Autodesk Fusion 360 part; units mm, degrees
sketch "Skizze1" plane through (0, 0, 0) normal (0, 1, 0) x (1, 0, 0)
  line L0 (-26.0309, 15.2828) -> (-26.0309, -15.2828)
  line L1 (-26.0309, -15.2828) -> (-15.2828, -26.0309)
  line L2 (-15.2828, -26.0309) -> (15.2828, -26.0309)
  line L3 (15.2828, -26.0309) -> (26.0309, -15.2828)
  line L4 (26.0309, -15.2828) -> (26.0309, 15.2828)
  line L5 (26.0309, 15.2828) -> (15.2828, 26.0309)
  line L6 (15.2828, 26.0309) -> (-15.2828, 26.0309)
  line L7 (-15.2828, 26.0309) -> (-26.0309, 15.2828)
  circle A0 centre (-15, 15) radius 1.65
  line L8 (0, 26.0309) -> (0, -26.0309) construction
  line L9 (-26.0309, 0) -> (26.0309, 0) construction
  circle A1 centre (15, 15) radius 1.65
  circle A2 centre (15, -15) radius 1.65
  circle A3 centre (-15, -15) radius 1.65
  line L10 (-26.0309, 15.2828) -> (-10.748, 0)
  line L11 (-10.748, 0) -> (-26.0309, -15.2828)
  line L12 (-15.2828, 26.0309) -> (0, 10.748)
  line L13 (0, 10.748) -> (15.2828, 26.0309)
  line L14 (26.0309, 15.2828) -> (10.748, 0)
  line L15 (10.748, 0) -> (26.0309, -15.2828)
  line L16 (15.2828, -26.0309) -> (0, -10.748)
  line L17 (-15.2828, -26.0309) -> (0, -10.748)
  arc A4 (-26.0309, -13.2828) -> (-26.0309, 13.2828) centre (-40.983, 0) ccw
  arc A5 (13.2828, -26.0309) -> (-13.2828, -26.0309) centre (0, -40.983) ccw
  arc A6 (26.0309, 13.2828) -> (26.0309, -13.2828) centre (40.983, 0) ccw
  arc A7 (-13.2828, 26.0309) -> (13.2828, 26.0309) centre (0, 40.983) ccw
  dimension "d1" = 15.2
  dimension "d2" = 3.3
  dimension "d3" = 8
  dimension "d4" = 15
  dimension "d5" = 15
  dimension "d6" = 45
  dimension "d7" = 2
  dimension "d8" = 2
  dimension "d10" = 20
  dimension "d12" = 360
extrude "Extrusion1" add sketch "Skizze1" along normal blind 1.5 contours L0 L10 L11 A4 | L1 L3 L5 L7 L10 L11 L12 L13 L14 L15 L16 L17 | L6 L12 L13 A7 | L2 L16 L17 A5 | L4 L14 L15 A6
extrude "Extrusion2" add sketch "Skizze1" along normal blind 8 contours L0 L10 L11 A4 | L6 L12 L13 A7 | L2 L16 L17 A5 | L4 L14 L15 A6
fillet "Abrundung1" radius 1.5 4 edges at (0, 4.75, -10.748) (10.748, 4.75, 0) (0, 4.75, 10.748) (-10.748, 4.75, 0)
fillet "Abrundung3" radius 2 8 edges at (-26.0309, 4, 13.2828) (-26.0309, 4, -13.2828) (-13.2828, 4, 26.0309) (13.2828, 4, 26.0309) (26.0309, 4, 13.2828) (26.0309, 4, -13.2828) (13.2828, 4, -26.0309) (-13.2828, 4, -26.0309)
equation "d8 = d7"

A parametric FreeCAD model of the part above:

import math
import FreeCAD as App
import Part
import Sketcher

V = App.Vector


def edges_at(feature, points):
    """Names of the edges that pass closest to the given points."""
    edges = feature.Shape.Edges
    near = lambda p: min(range(len(edges)), key=lambda i: edges[i].distToShape(Part.Vertex(*p))[0])
    return sorted({f"Edge{near(p) + 1}" for p in points})

doc = App.newDocument("Part")
body = doc.addObject("PartDesign::Body", "Body")

# Sketch on XZ plane
sketch1 = doc.addObject("Sketcher::SketchObject", "Sketch")
body.addObject(sketch1)
sketch1.AttachmentSupport = (doc.XZ_Plane, [""])
sketch1.MapMode = "FlatFace"
sketch1.addGeometry([
    Part.LineSegment(V(-26, 13.3, 0), V(-26, 15.3, 0)),  # 0
    Part.LineSegment(V(-26, 15.3, 0), V(-15.3, 26, 0)),  # 1
    Part.LineSegment(V(-15.3, 26, 0), V(-13.3, 26, 0)),  # 2
    Part.ArcOfCircle(Part.Circle(V(0, 41, 0), V(0, 0, 1), 20), math.radians(-132), math.radians(-48)),  # 3
    Part.LineSegment(V(13.3, 26, 0), V(15.3, 26, 0)),  # 4
    Part.LineSegment(V(15.3, 26, 0), V(26, 15.3, 0)),  # 5
    Part.LineSegment(V(26, 15.3, 0), V(26, 13.3, 0)),  # 6
    Part.ArcOfCircle(Part.Circle(V(41, 0, 0), V(0, 0, 1), 20), math.radians(138), math.radians(222)),  # 7
    Part.LineSegment(V(26, -13.3, 0), V(26, -15.3, 0)),  # 8
    Part.LineSegment(V(26, -15.3, 0), V(15.3, -26, 0)),  # 9
    Part.LineSegment(V(15.3, -26, 0), V(13.3, -26, 0)),  # 10
    Part.ArcOfCircle(Part.Circle(V(0, -41, 0), V(0, 0, 1), 20), math.radians(48), math.radians(132)),  # 11
    Part.LineSegment(V(-13.3, -26, 0), V(-15.3, -26, 0)),  # 12
    Part.LineSegment(V(-15.3, -26, 0), V(-26, -15.3, 0)),  # 13
    Part.LineSegment(V(-26, -15.3, 0), V(-26, -13.3, 0)),  # 14
    Part.ArcOfCircle(Part.Circle(V(-41, 0, 0), V(0, 0, 1), 20), math.radians(-42), math.radians(42)),  # 15
    Part.Circle(V(-15, -15, 0), V(0, 0, 1), 1.6),  # 16
    Part.Circle(V(15, -15, 0), V(0, 0, 1), 1.6),  # 17
    Part.Circle(V(-15, 15, 0), V(0, 0, 1), 1.6),  # 18
    Part.Circle(V(15, 15, 0), V(0, 0, 1), 1.6),  # 19
], False)
sketch1.addConstraint([
    Sketcher.Constraint("Coincident", 0, 2, 1, 1),
    Sketcher.Constraint("Coincident", 1, 2, 2, 1),
    Sketcher.Constraint("Coincident", 2, 2, 3, 1),
    Sketcher.Constraint("Coincident", 3, 2, 4, 1),
    Sketcher.Constraint("Coincident", 4, 2, 5, 1),
    Sketcher.Constraint("Coincident", 5, 2, 6, 1),
    Sketcher.Constraint("Coincident", 6, 2, 7, 1),
    Sketcher.Constraint("Coincident", 7, 2, 8, 1),
    Sketcher.Constraint("Coincident", 8, 2, 9, 1),
    Sketcher.Constraint("Coincident", 9, 2, 10, 1),
    Sketcher.Constraint("Coincident", 10, 2, 11, 1),
    Sketcher.Constraint("Coincident", 11, 2, 12, 1),
    Sketcher.Constraint("Coincident", 12, 2, 13, 1),
    Sketcher.Constraint("Coincident", 13, 2, 14, 1),
    Sketcher.Constraint("Coincident", 14, 2, 15, 1),
    Sketcher.Constraint("Coincident", 15, 2, 0, 1),
    Sketcher.Constraint("Vertical", 0),
    Sketcher.Constraint("Horizontal", 2),
    Sketcher.Constraint("Horizontal", 4),
    Sketcher.Constraint("Vertical", 6),
    Sketcher.Constraint("Vertical", 8),
    Sketcher.Constraint("Horizontal", 10),
    Sketcher.Constraint("Horizontal", 12),
    Sketcher.Constraint("Vertical", 14),
    Sketcher.Constraint("Equal", 3, 7),
    Sketcher.Constraint("Equal", 7, 11),
    Sketcher.Constraint("Equal", 11, 15),
    Sketcher.Constraint("Equal", 16, 17),
    Sketcher.Constraint("Equal", 17, 18),
    Sketcher.Constraint("Equal", 18, 19),
    Sketcher.Constraint("Symmetric", 3, 3, 11, 3, -1, 1),
    Sketcher.Constraint("Symmetric", 7, 3, 15, 3, -1, 1),
    Sketcher.Constraint("Symmetric", 17, 3, 18, 3, -1, 1),
    Sketcher.Constraint("Symmetric", 16, 3, 19, 3, -1, 1),
    Sketcher.Constraint("Symmetric", 0, 2, 8, 2, -1, 1),
    Sketcher.Constraint("Symmetric", 1, 2, 9, 2, -1, 1),
    Sketcher.Constraint("Symmetric", 4, 2, 12, 2, -1, 1),
    Sketcher.Constraint("Symmetric", 5, 2, 13, 2, -1, 1),
    Sketcher.Constraint("Symmetric", 16, 3, 17, 3, -2),
    Sketcher.Constraint("Symmetric", 2, 2, 3, 2, -2),
    Sketcher.Constraint("Symmetric", 0, 2, 5, 2, -2),
    Sketcher.Constraint("PointOnObject", 7, 3, -1),
    Sketcher.Constraint("Perpendicular", 1, 5),
    Sketcher.Constraint("Vertical", 4, 2, 9, 2),
    Sketcher.Constraint("Equal", 12, 0),
    Sketcher.Constraint("Radius", 3, 20.0),
    Sketcher.Constraint("Diameter", 16, 3.3),
    Sketcher.Constraint("DistanceX", 2, 1, 2, 2, 2.0),
    Sketcher.Constraint("DistanceX", 16, 3, -1, 1, 15.0),
    Sketcher.Constraint("DistanceY", 16, 3, -1, 1, 15.0),
    Sketcher.Constraint("Distance", 1, 15.2),
    Sketcher.Constraint("DistanceY", -1, 1, 3, 3, 40.983),
    Sketcher.Constraint("DistanceX", -1, 1, 7, 3, 40.983),
])
pad1 = doc.addObject("PartDesign::Pad", "Pad")
body.addObject(pad1)
pad1.Profile = sketch1
pad1.Length = 1.5
pad1.Reversed = True

# Sketch on XZ plane
sketch2 = doc.addObject("Sketcher::SketchObject", "Sketch001")
body.addObject(sketch2)
sketch2.AttachmentSupport = (doc.XZ_Plane, [""])
sketch2.MapMode = "FlatFace"
sketch2.addGeometry([
    Part.LineSegment(V(-10.7, 0, 0), V(-26, -15.3, 0)),  # 0
    Part.LineSegment(V(-26, -15.3, 0), V(-26, -13.3, 0)),  # 1
    Part.ArcOfCircle(Part.Circle(V(-41, 0, 0), V(0, 0, 1), 20), math.radians(-42), math.radians(42)),  # 2
    Part.LineSegment(V(-26, 13.3, 0), V(-26, 15.3, 0)),  # 3
    Part.LineSegment(V(-26, 15.3, 0), V(-10.7, 0, 0)),  # 4
    Part.LineSegment(V(-13.3, -26, 0), V(-15.3, -26, 0)),  # 5
    Part.LineSegment(V(-15.3, -26, 0), V(0, -10.7, 0)),  # 6
    Part.LineSegment(V(0, -10.7, 0), V(15.3, -26, 0)),  # 7
    Part.LineSegment(V(15.3, -26, 0), V(13.3, -26, 0)),  # 8
    Part.ArcOfCircle(Part.Circle(V(0, -41, 0), V(0, 0, 1), 20), math.radians(48), math.radians(132)),  # 9
    Part.LineSegment(V(0, 10.7, 0), V(-15.3, 26, 0)),  # 10
    Part.LineSegment(V(-15.3, 26, 0), V(-13.3, 26, 0)),  # 11
    Part.ArcOfCircle(Part.Circle(V(0, 41, 0), V(0, 0, 1), 20), math.radians(-132), math.radians(-48)),  # 12
    Part.LineSegment(V(13.3, 26, 0), V(15.3, 26, 0)),  # 13
    Part.LineSegment(V(15.3, 26, 0), V(0, 10.7, 0)),  # 14
    Part.LineSegment(V(26, -13.3, 0), V(26, -15.3, 0)),  # 15
    Part.LineSegment(V(26, -15.3, 0), V(10.7, 0, 0)),  # 16
    Part.LineSegment(V(10.7, 0, 0), V(26, 15.3, 0)),  # 17
    Part.LineSegment(V(26, 15.3, 0), V(26, 13.3, 0)),  # 18
    Part.ArcOfCircle(Part.Circle(V(41, 0, 0), V(0, 0, 1), 20), math.radians(138), math.radians(222)),  # 19
], False)
sketch2.addConstraint([
    Sketcher.Constraint("Coincident", 0, 2, 1, 1),
    Sketcher.Constraint("Coincident", 1, 2, 2, 1),
    Sketcher.Constraint("Coincident", 2, 2, 3, 1),
    Sketcher.Constraint("Coincident", 3, 2, 4, 1),
    Sketcher.Constraint("Coincident", 4, 2, 0, 1),
    Sketcher.Constraint("Coincident", 5, 2, 6, 1),
    Sketcher.Constraint("Coincident", 6, 2, 7, 1),
    Sketcher.Constraint("Coincident", 7, 2, 8, 1),
    Sketcher.Constraint("Coincident", 8, 2, 9, 1),
    Sketcher.Constraint("Coincident", 9, 2, 5, 1),
    Sketcher.Constraint("Coincident", 10, 2, 11, 1),
    Sketcher.Constraint("Coincident", 11, 2, 12, 1),
    Sketcher.Constraint("Coincident", 12, 2, 13, 1),
    Sketcher.Constraint("Coincident", 13, 2, 14, 1),
    Sketcher.Constraint("Coincident", 14, 2, 10, 1),
    Sketcher.Constraint("Coincident", 15, 2, 16, 1),
    Sketcher.Constraint("Coincident", 16, 2, 17, 1),
    Sketcher.Constraint("Coincident", 17, 2, 18, 1),
    Sketcher.Constraint("Coincident", 18, 2, 19, 1),
    Sketcher.Constraint("Coincident", 19, 2, 15, 1),
    Sketcher.Constraint("Vertical", 1),
    Sketcher.Constraint("Vertical", 3),
    Sketcher.Constraint("Horizontal", 5),
    Sketcher.Constraint("Horizontal", 8),
    Sketcher.Constraint("Horizontal", 11),
    Sketcher.Constraint("Horizontal", 13),
    Sketcher.Constraint("Vertical", 15),
    Sketcher.Constraint("Vertical", 18),
    Sketcher.Constraint("Equal", 2, 9),
    Sketcher.Constraint("Equal", 9, 12),
    Sketcher.Constraint("Equal", 12, 19),
    Sketcher.Constraint("Symmetric", 9, 3, 12, 3, -1, 1),
    Sketcher.Constraint("Symmetric", 2, 3, 19, 3, -1, 1),
    Sketcher.Constraint("Symmetric", 7, 2, 10, 2, -1, 1),
    Sketcher.Constraint("Symmetric", 5, 2, 13, 2, -1, 1),
    Sketcher.Constraint("Symmetric", 6, 2, 14, 2, -1, 1),
    Sketcher.Constraint("Symmetric", 3, 2, 15, 2, -1, 1),
    Sketcher.Constraint("Symmetric", 4, 2, 16, 2, -1, 1),
    Sketcher.Constraint("Symmetric", 0, 2, 17, 2, -1, 1),
    Sketcher.Constraint("Symmetric", 5, 2, 7, 2, -2),
    Sketcher.Constraint("Symmetric", 0, 2, 15, 2, -2),
    Sketcher.Constraint("PointOnObject", 2, 3, -1),
    Sketcher.Constraint("PointOnObject", 9, 3, -2),
    Sketcher.Constraint("PointOnObject", 4, 2, -1),
    Sketcher.Constraint("PointOnObject", 6, 2, -2),
    Sketcher.Constraint("Perpendicular", 0, 4),
    Sketcher.Constraint("Perpendicular", 4, 6),
    Sketcher.Constraint("Equal", 13, 1),
    Sketcher.Constraint("Equal", 4, 6),
    Sketcher.Constraint("Radius", 2, 20.0),
    Sketcher.Constraint("DistanceX", 5, 2, 5, 1, 2.0),
    Sketcher.Constraint("DistanceX", 2, 3, -1, 1, 40.983),
    Sketcher.Constraint("DistanceY", 9, 3, -1, 1, 40.983),
    Sketcher.Constraint("DistanceX", 0, 2, -1, 1, 26.031),
])
pad2 = doc.addObject("PartDesign::Pad", "Pad001")
body.addObject(pad2)
pad2.Profile = sketch2
pad2.Length = 8
pad2.Reversed = True
doc.recompute()

fillet = doc.addObject("PartDesign::Fillet", "Fillet")
body.addObject(fillet)
fillet.Base = (pad2, edges_at(pad2, [
    (0, 4.75, -10.748),
    (10.748, 4.75, 0),
    (0, 4.75, 10.748),
    (-10.748, 4.75, 0),
]))
fillet.Radius = 1.5
doc.recompute()

fillet2 = doc.addObject("PartDesign::Fillet", "Fillet001")
body.addObject(fillet2)
fillet2.Base = (fillet, edges_at(fillet, [
    (-26.031, 4, 13.283),
    (-26.031, 4, -13.283),
    (-13.283, 4, 26.031),
    (13.283, 4, 26.031),
    (26.031, 4, 13.283),
    (26.031, 4, -13.283),
    (13.283, 4, -26.031),
    (-13.283, 4, -26.031),
]))
fillet2.Radius = 2

doc.recompute()
